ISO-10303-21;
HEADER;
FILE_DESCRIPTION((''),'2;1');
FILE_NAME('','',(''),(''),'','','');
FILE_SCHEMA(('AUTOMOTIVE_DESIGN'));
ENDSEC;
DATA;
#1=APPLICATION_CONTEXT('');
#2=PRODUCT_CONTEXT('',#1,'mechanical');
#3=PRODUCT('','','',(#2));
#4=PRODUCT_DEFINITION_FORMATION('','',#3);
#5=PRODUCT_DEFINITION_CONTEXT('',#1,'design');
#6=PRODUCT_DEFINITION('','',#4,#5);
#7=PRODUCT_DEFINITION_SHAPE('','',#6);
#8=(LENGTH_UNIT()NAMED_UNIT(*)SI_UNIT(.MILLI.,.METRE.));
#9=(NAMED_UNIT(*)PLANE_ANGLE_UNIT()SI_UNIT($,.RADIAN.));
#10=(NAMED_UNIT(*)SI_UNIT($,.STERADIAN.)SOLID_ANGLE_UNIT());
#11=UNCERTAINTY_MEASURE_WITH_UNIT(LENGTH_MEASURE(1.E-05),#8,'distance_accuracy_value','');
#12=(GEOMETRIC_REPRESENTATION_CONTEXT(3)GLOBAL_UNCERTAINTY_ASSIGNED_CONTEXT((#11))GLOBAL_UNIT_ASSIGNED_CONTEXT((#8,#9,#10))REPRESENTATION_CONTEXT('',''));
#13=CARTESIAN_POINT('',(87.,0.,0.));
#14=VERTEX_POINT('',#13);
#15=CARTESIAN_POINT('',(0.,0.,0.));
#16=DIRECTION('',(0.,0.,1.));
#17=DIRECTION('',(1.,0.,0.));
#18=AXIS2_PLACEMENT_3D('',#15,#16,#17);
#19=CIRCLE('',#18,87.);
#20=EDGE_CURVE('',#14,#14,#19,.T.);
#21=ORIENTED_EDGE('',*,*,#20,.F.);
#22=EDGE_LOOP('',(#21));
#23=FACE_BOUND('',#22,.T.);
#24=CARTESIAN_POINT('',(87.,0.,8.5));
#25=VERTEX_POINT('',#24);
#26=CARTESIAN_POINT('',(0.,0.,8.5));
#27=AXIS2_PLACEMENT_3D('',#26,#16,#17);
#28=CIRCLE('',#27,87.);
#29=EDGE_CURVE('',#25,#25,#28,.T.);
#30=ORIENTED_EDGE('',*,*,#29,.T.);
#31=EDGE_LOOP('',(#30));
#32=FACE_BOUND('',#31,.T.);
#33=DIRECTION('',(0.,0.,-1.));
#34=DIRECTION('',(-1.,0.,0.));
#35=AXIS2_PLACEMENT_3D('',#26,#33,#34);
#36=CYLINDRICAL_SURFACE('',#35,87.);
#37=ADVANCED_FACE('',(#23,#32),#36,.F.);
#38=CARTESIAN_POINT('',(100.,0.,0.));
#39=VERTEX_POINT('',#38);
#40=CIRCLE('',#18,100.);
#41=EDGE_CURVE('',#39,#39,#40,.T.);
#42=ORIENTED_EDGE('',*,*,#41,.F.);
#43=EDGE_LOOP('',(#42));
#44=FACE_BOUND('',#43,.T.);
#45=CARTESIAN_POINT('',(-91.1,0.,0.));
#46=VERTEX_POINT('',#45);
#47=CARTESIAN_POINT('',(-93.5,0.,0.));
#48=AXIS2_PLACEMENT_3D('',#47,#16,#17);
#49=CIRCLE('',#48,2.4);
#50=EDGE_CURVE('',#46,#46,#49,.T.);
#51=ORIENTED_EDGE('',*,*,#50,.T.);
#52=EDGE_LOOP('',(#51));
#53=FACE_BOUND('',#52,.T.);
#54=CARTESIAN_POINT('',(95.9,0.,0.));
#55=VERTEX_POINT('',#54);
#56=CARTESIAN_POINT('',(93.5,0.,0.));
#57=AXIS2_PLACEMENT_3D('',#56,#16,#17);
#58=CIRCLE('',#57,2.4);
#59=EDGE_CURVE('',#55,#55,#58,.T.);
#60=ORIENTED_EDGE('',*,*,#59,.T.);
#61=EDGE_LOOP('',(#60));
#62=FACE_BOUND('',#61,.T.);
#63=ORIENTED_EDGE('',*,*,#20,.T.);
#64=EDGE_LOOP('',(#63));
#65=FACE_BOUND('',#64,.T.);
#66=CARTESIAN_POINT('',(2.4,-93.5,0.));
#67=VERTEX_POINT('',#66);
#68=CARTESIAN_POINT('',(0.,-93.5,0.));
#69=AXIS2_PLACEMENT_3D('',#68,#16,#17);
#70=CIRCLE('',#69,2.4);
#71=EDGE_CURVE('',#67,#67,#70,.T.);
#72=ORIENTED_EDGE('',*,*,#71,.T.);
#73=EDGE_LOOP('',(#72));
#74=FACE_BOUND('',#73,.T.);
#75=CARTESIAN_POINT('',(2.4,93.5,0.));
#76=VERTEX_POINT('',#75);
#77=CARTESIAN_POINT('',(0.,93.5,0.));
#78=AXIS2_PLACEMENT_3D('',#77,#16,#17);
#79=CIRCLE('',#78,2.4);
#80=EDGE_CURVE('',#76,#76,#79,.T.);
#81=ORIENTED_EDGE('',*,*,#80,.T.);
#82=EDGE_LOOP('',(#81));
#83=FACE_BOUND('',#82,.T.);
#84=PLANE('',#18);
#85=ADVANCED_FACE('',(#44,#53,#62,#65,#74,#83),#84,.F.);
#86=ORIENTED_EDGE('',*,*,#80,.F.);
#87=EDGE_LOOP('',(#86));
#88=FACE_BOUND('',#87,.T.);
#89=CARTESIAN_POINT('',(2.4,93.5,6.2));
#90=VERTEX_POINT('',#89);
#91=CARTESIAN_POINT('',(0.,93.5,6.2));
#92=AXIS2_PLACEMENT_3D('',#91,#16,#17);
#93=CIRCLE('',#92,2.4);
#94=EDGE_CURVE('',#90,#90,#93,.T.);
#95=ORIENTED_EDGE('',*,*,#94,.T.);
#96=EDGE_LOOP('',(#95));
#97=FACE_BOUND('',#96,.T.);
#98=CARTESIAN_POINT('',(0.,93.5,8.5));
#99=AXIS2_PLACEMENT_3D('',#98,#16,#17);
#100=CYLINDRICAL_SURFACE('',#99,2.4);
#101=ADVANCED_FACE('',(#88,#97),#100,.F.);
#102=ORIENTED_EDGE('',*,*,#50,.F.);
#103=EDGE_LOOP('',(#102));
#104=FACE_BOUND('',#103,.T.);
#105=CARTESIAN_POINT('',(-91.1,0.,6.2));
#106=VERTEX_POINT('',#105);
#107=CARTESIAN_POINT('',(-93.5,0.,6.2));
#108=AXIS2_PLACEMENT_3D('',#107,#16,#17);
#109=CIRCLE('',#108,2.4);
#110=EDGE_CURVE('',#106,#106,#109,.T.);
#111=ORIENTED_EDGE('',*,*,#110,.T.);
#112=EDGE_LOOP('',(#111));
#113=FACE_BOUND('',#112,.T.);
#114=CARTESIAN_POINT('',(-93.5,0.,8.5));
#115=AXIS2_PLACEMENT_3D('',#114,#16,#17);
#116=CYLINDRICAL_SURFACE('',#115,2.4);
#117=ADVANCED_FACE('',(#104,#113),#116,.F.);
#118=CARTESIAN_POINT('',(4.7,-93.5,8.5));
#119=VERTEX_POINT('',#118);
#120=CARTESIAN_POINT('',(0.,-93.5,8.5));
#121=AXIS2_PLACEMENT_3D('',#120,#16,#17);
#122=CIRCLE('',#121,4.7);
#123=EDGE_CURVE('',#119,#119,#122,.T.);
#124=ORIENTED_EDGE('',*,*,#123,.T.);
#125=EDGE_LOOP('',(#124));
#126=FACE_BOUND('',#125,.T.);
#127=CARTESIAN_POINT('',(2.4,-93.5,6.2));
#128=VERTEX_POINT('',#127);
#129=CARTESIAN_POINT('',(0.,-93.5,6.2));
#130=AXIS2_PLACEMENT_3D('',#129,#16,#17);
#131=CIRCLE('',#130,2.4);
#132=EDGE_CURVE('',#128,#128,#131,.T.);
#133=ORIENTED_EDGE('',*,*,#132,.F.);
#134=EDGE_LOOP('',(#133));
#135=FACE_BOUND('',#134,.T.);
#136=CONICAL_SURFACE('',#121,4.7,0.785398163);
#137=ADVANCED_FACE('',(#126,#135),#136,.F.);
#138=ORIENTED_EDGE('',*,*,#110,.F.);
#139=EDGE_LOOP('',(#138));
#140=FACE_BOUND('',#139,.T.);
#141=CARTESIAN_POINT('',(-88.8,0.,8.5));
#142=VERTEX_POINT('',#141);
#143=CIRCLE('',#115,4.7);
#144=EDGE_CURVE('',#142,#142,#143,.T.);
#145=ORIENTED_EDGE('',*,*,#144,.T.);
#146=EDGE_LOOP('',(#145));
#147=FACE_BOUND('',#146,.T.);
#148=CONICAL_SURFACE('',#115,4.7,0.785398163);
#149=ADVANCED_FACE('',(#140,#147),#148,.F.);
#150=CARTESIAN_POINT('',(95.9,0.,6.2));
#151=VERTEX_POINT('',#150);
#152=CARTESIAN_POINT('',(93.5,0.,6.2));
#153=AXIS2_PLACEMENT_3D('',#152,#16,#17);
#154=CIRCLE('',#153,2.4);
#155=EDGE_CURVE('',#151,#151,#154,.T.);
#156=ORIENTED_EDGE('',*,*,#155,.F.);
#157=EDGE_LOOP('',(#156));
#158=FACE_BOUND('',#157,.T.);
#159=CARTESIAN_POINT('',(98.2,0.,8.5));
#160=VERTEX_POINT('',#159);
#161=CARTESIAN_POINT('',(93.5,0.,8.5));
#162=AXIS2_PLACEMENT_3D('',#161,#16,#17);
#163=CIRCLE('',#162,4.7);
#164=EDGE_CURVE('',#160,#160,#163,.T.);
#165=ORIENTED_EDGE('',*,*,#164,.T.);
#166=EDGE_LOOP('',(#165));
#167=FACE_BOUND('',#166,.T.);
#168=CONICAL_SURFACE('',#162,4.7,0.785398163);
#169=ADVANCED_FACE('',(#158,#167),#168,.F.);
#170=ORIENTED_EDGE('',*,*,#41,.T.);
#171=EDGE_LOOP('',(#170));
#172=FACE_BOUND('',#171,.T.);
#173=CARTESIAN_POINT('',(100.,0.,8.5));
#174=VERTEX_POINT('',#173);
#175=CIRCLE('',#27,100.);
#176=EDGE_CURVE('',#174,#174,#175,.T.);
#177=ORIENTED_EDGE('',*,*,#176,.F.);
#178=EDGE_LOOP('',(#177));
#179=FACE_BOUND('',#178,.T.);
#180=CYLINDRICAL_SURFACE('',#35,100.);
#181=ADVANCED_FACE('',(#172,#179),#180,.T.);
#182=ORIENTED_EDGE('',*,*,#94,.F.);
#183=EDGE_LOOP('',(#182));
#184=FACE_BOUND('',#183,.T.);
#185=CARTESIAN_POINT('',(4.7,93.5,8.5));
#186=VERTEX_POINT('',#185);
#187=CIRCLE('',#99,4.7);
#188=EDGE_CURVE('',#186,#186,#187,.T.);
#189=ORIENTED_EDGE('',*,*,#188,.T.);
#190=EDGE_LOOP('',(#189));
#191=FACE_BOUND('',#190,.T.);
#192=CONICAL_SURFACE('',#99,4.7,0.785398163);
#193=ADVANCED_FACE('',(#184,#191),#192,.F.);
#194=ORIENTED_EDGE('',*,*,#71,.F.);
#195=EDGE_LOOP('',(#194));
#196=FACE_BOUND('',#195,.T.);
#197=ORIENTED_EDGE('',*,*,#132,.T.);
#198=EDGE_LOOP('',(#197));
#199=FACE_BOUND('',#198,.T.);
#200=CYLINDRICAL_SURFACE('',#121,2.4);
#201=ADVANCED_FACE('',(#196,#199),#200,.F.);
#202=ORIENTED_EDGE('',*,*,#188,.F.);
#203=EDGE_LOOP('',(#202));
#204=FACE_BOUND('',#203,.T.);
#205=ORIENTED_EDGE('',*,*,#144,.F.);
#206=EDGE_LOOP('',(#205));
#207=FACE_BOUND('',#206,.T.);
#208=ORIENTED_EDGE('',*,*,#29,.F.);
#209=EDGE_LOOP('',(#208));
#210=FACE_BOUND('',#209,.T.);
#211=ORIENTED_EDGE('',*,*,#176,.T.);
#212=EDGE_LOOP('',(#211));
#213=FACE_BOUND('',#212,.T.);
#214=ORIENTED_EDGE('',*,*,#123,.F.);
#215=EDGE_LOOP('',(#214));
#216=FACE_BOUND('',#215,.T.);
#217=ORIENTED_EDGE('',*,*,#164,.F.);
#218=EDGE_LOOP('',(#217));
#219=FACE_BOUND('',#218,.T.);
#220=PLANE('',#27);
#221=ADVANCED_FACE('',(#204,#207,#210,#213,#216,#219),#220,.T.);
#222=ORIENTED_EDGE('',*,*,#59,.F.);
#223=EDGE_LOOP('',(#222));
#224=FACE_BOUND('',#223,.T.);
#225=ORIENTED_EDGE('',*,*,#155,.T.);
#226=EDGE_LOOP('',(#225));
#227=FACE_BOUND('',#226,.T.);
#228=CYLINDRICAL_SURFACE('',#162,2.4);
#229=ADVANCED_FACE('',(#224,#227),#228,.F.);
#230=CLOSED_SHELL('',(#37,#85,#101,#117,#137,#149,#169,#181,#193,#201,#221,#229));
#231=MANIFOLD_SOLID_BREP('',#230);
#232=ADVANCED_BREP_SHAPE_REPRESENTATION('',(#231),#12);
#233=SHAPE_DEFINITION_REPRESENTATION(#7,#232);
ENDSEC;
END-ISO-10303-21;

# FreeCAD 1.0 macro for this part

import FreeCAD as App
import Part
import Sketcher

V = App.Vector
Q = App.Units.Quantity

doc = App.newDocument("Part")
body = doc.addObject("PartDesign::Body", "Body")

sketch1 = doc.addObject("Sketcher::SketchObject", "Sketch")
body.addObject(sketch1)
sketch1.AttachmentSupport = (doc.XY_Plane, [""])
sketch1.MapMode = "FlatFace"
sketch1.addGeometry([
    Part.Circle(V(0, 0, 0), V(0, 0, 1), 100),
    Part.Circle(V(0, -93.5, 0), V(0, 0, 1), 2.2),
    Part.Circle(V(-93.5, 0, 0), V(0, 0, 1), 2.2),
    Part.Circle(V(0, 0, 0), V(0, 0, 1), 87),
    Part.Circle(V(93.5, 0, 0), V(0, 0, 1), 2.2),
    Part.Circle(V(0, 93.5, 0), V(0, 0, 1), 2.2),
], False)
sketch1.addConstraint([
    Sketcher.Constraint("Coincident", 0, 3, -1, 1),
    Sketcher.Constraint("Coincident", 3, 3, -1, 1),
    Sketcher.Constraint("Equal", 1, 2),
    Sketcher.Constraint("Equal", 2, 4),
    Sketcher.Constraint("Equal", 4, 5),
    Sketcher.Constraint("Symmetric", 2, 3, 4, 3, -1, 1),
    Sketcher.Constraint("Symmetric", 1, 3, 5, 3, -1, 1),
    Sketcher.Constraint("PointOnObject", 1, 3, -2),
    Sketcher.Constraint("PointOnObject", 2, 3, -1),
    Sketcher.Constraint("Diameter", 0, Q("200 mm")),
    Sketcher.Constraint("Diameter", 3, Q("174 mm")),
    Sketcher.Constraint("Diameter", 1, Q("4.5 mm")),
    Sketcher.Constraint("DistanceX", 2, 3, 4, 3, Q("187 mm")),
    Sketcher.Constraint("DistanceY", 1, 3, 5, 3, Q("187 mm")),
])
pad1 = doc.addObject("PartDesign::Pad", "Pad")
body.addObject(pad1)
pad1.Profile = sketch1
pad1.Length = 8.5

sketch2 = doc.addObject("Sketcher::SketchObject", "Sketch001")
body.addObject(sketch2)
sketch2.AttachmentSupport = (doc.XY_Plane, [""])
sketch2.MapMode = "FlatFace"
sketch2.AttachmentOffset = App.Placement(V(0, 0, 8.5), App.Rotation())
sketch2.addGeometry([
    Part.Circle(V(-93.5, 0, 0), V(0, 0, 1), 2.4),
    Part.Circle(V(0, 93.5, 0), V(0, 0, 1), 2.4),
    Part.Circle(V(93.5, 0, 0), V(0, 0, 1), 2.4),
    Part.Circle(V(0, -93.5, 0), V(0, 0, 1), 2.4),
], False)
sketch2.addConstraint([
    Sketcher.Constraint("Equal", 0, 1),
    Sketcher.Constraint("Equal", 1, 2),
    Sketcher.Constraint("Equal", 2, 3),
    Sketcher.Constraint("Symmetric", 0, 3, 2, 3, -1, 1),
    Sketcher.Constraint("Symmetric", 1, 3, 3, 3, -1, 1),
    Sketcher.Constraint("PointOnObject", 0, 3, -1),
    Sketcher.Constraint("PointOnObject", 1, 3, -2),
    Sketcher.Constraint("Diameter", 0, Q("4.8 mm")),
    Sketcher.Constraint("DistanceX", 0, 3, 2, 3, Q("187 mm")),
    Sketcher.Constraint("DistanceY", 3, 3, 1, 3, Q("187 mm")),
])
doc.recompute()
hole = doc.addObject("PartDesign::Hole", "Hole")
body.addObject(hole)
hole.Profile = sketch2
hole.ThreadType = "None"
hole.Diameter = 4.8
hole.DepthType = "ThroughAll"
hole.HoleCutType = "Countersink"
hole.HoleCutDiameter = 9.4
hole.HoleCutCountersinkAngle = 90

doc.recompute()
